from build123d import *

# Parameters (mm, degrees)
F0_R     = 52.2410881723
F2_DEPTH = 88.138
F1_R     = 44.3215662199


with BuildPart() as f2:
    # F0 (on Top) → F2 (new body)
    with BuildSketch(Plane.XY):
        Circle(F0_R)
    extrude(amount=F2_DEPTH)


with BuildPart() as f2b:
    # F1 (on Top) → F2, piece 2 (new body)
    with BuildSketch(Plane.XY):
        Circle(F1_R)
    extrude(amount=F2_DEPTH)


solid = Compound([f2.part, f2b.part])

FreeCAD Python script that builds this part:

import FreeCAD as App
import Part
import Sketcher
Q = App.Units.Quantity

doc = App.newDocument("Part")
body = doc.addObject("PartDesign::Body", "Body")

sketch1 = body.newObject("Sketcher::SketchObject", "Sketch")
sketch1.AttachmentSupport = (doc.getObject("XY_Plane"), [""])
sketch1.MapMode = "FlatFace"
sketch1.addGeometry(Part.Circle(App.Vector(0, 0, 0), App.Vector(0, 0, 1), 52.241088), False)
sketch1.addConstraint([
    Sketcher.Constraint("Coincident", 0, 3, -1, 1),
    Sketcher.Constraint("Diameter", 0, 104.482176),
])
pad1 = body.newObject("PartDesign::Pad", "Pad")
pad1.Profile = sketch1
pad1.Length = Q("3.47 in")
body2 = doc.addObject("PartDesign::Body", "Body001")

sketch2 = body2.newObject("Sketcher::SketchObject", "Sketch001")
sketch2.AttachmentSupport = (doc.getObject("XY_Plane001"), [""])
sketch2.MapMode = "FlatFace"
sketch2.addGeometry(Part.Circle(App.Vector(0, 0, 0), App.Vector(0, 0, 1), 44.321566), False)
sketch2.addConstraint([
    Sketcher.Constraint("Coincident", 0, 3, -1, 1),
    Sketcher.Constraint("Diameter", 0, 88.643132),
])
pad2 = body2.newObject("PartDesign::Pad", "Pad001")
pad2.Profile = sketch2
pad2.Length = Q("3.47 in")

doc.recompute()
